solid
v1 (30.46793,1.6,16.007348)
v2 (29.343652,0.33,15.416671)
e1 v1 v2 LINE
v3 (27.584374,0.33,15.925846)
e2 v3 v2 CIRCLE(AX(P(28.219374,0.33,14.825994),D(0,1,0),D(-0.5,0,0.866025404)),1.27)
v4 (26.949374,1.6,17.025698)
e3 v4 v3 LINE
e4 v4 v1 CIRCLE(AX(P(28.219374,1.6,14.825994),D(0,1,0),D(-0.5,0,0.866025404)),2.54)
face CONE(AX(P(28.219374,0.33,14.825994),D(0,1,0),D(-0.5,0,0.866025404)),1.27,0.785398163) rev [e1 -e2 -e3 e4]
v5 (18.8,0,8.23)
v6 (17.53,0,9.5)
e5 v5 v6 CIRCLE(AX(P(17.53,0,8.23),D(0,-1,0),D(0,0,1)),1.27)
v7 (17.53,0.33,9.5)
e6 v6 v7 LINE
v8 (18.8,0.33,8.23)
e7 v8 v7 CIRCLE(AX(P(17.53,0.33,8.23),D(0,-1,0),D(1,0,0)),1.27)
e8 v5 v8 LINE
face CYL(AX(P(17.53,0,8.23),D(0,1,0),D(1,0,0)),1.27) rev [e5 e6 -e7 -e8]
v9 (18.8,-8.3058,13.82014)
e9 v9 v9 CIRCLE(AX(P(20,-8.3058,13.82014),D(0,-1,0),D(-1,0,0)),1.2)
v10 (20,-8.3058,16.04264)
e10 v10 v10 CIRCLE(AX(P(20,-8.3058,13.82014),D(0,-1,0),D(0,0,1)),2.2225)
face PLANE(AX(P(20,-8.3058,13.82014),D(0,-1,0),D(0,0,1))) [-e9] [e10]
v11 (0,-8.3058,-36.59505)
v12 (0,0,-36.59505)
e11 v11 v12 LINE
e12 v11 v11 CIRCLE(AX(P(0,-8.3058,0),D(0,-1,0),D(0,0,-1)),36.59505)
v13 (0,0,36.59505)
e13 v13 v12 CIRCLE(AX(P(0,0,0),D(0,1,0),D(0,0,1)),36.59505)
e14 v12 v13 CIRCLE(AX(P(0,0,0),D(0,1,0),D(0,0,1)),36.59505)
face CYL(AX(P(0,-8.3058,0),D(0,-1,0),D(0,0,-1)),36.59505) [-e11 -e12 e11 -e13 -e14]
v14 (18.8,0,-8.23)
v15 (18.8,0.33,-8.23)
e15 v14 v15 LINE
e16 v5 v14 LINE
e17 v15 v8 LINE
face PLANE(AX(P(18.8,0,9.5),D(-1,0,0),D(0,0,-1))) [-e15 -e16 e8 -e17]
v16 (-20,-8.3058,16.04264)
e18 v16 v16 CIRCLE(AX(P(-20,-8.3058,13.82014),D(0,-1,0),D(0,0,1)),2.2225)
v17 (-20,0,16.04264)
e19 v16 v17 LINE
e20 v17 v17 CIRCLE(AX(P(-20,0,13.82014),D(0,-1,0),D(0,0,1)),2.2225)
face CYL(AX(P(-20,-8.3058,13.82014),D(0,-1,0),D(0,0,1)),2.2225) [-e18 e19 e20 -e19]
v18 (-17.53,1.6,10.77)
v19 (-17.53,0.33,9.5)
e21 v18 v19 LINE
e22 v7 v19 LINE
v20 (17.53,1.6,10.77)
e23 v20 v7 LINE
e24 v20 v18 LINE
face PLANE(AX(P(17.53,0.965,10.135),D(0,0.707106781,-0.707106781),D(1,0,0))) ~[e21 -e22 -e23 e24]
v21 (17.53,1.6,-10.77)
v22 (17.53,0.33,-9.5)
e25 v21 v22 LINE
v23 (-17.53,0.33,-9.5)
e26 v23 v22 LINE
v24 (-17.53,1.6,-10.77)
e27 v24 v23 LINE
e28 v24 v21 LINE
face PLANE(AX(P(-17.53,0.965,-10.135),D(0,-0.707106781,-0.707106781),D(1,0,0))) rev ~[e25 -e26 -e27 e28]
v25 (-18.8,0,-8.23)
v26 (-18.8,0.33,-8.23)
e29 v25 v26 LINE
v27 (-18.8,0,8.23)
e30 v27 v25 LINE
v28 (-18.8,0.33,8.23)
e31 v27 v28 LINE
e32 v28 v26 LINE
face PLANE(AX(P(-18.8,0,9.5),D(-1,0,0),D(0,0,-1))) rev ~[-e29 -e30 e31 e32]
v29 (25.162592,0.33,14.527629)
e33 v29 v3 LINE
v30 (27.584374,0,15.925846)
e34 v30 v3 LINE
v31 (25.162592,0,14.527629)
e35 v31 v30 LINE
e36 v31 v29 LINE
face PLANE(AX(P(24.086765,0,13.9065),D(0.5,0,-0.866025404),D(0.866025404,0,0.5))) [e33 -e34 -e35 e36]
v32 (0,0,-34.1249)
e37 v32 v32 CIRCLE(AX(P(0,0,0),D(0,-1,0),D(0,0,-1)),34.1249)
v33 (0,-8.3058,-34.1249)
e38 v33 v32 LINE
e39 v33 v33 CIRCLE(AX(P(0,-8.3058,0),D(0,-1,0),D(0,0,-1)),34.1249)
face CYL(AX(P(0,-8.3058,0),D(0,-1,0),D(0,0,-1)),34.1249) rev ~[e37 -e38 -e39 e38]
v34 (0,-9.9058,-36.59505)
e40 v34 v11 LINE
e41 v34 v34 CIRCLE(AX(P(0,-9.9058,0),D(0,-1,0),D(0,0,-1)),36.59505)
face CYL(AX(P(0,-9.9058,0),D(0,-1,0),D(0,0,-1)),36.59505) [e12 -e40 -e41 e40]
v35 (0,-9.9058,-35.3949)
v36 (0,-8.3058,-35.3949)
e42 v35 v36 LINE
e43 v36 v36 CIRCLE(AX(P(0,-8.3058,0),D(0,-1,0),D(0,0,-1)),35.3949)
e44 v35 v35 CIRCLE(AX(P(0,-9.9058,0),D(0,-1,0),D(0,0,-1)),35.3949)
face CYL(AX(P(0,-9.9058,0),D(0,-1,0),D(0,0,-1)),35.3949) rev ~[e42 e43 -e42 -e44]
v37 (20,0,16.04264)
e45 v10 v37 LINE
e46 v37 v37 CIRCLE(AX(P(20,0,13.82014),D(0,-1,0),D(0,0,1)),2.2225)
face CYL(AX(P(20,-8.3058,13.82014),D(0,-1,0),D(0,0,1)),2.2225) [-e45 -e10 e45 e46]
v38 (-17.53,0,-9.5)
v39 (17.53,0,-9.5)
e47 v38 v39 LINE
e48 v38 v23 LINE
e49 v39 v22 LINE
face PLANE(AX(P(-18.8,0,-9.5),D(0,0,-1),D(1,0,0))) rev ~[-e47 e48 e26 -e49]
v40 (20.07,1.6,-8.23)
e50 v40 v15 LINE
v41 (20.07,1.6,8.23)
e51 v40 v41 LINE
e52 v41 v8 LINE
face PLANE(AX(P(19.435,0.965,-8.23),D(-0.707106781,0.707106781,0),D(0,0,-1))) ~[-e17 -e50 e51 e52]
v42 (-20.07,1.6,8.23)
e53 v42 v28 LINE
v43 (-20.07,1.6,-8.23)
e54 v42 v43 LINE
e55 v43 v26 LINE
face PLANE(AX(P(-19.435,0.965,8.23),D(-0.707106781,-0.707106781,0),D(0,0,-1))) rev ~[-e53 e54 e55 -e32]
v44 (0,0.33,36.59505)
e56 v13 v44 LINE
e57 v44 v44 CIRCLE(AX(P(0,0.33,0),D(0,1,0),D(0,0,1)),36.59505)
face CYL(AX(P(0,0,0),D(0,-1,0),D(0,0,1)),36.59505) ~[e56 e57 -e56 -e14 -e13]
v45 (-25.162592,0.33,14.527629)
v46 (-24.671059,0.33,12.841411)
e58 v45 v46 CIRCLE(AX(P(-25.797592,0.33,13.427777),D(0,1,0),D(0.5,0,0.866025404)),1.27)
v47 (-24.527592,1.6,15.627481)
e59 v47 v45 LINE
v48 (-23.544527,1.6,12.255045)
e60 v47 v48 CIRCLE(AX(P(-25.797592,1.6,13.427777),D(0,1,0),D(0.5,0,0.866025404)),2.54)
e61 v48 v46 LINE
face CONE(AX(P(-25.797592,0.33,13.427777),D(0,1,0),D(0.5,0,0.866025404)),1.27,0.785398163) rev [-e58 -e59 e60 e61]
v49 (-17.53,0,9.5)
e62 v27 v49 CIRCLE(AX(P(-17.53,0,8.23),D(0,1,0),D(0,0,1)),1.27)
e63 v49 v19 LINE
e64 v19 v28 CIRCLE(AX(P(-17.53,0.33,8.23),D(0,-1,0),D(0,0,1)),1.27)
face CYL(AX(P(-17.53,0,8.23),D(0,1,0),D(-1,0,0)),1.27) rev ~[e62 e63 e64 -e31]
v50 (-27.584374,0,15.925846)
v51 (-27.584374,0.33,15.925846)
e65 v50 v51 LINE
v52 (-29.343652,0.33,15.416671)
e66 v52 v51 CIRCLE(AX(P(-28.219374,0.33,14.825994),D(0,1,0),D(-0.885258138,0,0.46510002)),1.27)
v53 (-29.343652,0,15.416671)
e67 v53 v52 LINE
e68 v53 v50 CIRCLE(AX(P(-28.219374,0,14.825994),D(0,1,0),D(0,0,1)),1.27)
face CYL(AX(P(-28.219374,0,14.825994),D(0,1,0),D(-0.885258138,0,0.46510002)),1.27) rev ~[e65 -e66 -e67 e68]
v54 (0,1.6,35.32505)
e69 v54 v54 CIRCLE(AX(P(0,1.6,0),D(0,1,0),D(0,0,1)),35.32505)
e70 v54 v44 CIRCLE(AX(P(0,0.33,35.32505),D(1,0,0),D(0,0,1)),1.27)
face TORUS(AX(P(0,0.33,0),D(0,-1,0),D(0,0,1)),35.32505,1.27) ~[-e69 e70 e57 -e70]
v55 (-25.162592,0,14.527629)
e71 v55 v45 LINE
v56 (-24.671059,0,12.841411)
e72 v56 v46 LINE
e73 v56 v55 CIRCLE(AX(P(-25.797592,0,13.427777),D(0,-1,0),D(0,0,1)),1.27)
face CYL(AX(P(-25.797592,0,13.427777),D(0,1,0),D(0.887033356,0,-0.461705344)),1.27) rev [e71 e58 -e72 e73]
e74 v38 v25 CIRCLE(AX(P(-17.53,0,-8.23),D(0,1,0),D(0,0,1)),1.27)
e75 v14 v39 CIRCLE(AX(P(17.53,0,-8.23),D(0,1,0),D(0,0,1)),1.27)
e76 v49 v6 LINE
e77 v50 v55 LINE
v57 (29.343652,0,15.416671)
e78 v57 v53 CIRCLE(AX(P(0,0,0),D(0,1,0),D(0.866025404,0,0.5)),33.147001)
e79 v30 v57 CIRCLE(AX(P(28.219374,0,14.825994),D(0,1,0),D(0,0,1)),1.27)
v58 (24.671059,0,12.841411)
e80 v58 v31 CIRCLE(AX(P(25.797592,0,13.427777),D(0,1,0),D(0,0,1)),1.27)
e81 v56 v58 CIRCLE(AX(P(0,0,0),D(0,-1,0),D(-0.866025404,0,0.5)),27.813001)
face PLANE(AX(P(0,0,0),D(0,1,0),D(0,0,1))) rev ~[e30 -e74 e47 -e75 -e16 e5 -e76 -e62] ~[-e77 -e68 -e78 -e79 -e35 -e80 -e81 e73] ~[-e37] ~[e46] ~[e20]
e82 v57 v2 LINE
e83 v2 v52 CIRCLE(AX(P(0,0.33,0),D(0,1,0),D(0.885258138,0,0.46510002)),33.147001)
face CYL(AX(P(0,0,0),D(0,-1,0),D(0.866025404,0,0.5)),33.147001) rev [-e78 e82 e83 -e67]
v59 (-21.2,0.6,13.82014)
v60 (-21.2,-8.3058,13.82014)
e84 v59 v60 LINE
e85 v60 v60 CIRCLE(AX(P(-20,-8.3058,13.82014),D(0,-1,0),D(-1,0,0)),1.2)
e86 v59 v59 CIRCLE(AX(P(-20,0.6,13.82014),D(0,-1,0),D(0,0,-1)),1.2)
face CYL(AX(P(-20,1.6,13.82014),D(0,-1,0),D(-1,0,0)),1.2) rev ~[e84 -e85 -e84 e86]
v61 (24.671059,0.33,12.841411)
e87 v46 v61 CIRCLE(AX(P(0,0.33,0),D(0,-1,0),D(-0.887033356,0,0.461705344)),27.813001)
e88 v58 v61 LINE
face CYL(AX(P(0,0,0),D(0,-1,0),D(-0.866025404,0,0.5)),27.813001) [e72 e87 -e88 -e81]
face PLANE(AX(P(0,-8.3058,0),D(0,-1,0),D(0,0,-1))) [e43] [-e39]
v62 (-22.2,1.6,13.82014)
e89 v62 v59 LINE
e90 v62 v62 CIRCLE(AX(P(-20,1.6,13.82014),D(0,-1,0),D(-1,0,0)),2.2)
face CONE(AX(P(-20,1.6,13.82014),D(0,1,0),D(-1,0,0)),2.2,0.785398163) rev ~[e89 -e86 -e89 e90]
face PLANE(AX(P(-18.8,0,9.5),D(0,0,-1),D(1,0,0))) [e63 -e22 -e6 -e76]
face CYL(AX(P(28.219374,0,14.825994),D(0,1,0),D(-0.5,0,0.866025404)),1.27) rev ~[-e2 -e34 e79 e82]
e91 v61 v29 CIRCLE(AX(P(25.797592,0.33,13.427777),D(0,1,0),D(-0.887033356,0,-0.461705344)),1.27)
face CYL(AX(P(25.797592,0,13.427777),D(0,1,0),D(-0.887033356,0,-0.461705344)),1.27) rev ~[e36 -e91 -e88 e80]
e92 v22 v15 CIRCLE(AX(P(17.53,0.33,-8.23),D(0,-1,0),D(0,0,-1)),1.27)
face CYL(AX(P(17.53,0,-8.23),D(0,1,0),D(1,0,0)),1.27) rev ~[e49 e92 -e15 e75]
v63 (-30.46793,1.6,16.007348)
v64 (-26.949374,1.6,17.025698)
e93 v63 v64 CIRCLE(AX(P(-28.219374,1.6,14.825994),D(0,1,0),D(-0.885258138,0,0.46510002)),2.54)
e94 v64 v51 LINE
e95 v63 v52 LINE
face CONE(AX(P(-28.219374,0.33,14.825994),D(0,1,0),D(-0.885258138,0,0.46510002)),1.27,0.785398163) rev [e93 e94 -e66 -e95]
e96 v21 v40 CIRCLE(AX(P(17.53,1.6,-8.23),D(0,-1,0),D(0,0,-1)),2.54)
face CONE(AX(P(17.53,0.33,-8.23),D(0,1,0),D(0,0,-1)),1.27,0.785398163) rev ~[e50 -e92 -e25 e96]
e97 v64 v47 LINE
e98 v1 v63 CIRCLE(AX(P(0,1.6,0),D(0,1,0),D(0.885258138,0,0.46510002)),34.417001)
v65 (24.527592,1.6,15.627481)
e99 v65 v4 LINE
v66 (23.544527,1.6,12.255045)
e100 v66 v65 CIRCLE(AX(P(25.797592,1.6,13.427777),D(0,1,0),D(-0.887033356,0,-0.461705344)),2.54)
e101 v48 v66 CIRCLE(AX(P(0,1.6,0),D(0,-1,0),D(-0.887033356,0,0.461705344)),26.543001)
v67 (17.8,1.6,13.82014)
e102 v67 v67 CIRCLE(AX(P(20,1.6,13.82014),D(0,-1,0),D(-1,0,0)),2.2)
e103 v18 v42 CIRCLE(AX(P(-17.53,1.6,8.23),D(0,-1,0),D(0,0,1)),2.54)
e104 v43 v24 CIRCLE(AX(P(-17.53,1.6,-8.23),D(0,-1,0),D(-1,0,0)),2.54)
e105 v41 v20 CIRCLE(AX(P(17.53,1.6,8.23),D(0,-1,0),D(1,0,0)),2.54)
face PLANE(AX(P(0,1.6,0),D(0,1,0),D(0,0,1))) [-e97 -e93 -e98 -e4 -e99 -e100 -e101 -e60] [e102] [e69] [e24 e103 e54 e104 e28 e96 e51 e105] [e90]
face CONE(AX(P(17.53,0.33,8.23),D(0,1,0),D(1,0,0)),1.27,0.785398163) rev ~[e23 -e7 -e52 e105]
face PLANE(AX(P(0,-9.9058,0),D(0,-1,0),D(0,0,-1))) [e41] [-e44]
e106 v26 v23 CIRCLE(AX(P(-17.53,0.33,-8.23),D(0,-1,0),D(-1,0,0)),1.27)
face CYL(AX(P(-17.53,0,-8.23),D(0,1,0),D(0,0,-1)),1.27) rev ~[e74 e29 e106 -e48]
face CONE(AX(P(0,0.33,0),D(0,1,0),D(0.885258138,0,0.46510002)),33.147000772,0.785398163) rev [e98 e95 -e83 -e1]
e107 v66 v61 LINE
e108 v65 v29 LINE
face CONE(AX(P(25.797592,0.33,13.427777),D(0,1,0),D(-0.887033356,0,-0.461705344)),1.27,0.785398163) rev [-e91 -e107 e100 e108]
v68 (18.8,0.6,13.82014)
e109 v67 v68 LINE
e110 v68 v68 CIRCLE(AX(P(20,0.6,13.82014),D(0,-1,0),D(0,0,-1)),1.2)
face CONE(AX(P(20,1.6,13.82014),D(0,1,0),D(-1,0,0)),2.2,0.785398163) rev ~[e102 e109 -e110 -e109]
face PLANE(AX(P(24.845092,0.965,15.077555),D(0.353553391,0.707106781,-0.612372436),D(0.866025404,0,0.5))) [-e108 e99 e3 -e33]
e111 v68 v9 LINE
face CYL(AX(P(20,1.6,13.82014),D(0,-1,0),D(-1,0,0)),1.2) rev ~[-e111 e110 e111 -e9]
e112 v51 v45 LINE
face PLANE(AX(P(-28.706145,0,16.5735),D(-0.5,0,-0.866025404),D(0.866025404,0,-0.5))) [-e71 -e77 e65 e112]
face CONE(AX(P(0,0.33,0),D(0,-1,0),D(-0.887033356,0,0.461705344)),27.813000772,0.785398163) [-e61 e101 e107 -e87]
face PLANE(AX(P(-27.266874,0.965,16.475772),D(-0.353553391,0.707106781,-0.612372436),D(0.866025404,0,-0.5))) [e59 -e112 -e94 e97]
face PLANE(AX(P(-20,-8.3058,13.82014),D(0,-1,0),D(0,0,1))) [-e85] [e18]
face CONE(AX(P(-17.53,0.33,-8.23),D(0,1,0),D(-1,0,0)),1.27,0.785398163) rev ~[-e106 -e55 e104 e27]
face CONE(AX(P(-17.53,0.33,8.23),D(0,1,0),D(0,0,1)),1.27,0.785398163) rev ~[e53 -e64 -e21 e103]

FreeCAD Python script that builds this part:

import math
import FreeCAD as App
import Part
import Sketcher
from FreeCAD import Vector
Q = App.Units.Quantity


def edges_at(feature, points):
    """Names of the edges that pass closest to the given points."""
    edges = feature.Shape.Edges
    near = lambda p: min(range(len(edges)), key=lambda i: edges[i].distToShape(Part.Vertex(*p))[0])
    return sorted({f"Edge{near(p) + 1}" for p in points})


def add_polygon(sketch, points):
    """Adds a closed chain of lines whose ends are joined by coincident constraints."""
    first, n = sketch.GeometryCount, len(points)
    for a, b in zip(points, points[1:] + points[:1]):
        sketch.addGeometry(Part.LineSegment(App.Vector(*a, 0), App.Vector(*b, 0)), False)
    for i in range(n):
        sketch.addConstraint(Sketcher.Constraint("Coincident", first + i, 2, first + (i + 1) % n, 1))

doc = App.newDocument("Part")
body = doc.addObject("PartDesign::Body", "Body")

# Sketch on XZ plane
sketch1 = doc.addObject("Sketcher::SketchObject", "Sketch")
body.addObject(sketch1)
sketch1.AttachmentSupport = (doc.XZ_Plane, [""])
sketch1.MapMode = "FlatFace"
sketch1.addGeometry(Part.Circle(Vector(0, 0, 0), Vector(0, 0, 1), 37), False)  # 0
sketch1.addGeometry(Part.LineSegment(Vector(-24, 14, 0), Vector(-29, 17, 0)), False)  # 1
sketch1.addGeometry(Part.ArcOfCircle(Part.Circle(Vector(0, 0, 0), Vector(0, 0, 1), 33), math.radians(150), math.radians(390)), False)  # 2
sketch1.addGeometry(Part.LineSegment(Vector(29, 17, 0), Vector(24, 14, 0)), False)  # 3
sketch1.addGeometry(Part.ArcOfCircle(Part.Circle(Vector(0, 0, 0), Vector(0, 0, 1), 28), math.radians(150), math.radians(390)), False)  # 4
add_polygon(sketch1, [(19, 10), (-19, 10), (-19, -10), (19, -10)])  # lines 5-8
sketch1.addConstraint(Sketcher.Constraint("Coincident", 1, 2, 2, 1))
sketch1.addConstraint(Sketcher.Constraint("Coincident", 2, 2, 3, 1))
sketch1.addConstraint(Sketcher.Constraint("Coincident", 3, 2, 4, 2))
sketch1.addConstraint(Sketcher.Constraint("Coincident", 4, 1, 1, 1))
sketch1.addConstraint(Sketcher.Constraint("Horizontal", 5))
sketch1.addConstraint(Sketcher.Constraint("Vertical", 6))
sketch1.addConstraint(Sketcher.Constraint("Horizontal", 7))
sketch1.addConstraint(Sketcher.Constraint("Vertical", 8))
sketch1.addConstraint(Sketcher.Constraint("Coincident", 0, 3, -1, 1))
sketch1.addConstraint(Sketcher.Constraint("Coincident", 2, 3, -1, 1))
sketch1.addConstraint(Sketcher.Constraint("Coincident", 4, 3, -1, 1))
sketch1.addConstraint(Sketcher.Constraint("Symmetric", 5, 2, 7, 2, -1, 1))
sketch1.addConstraint(Sketcher.Constraint("Horizontal", 1, 2, 2, 2))
sketch1.addConstraint(Sketcher.Constraint("Horizontal", 3, 2, 4, 1))
sketch1.addConstraint(Sketcher.Constraint("Angle", 1, Q("150 deg")))
sketch1.addConstraint(Sketcher.Constraint("Radius", 2, Q("1.305 in")))
sketch1.addConstraint(Sketcher.Constraint("Radius", 4, Q("1.095 in")))
sketch1.addConstraint(Sketcher.Constraint("Diameter", 0, Q("2.8815 in")))
sketch1.addConstraint(Sketcher.Constraint("DistanceX", 5, 2, 5, 1, Q("37.6 mm")))
sketch1.addConstraint(Sketcher.Constraint("DistanceY", 6, 2, 6, 1, Q("19 mm")))
sketch1.addConstraint(Sketcher.Constraint("DistanceY", -1, 1, 1, 2, Q("0.6525 in")))
pad1 = doc.addObject("PartDesign::Pad", "Pad")
body.addObject(pad1)
pad1.Profile = sketch1
pad1.Length = 1.6
pad1.Reversed = True

# Sketch on XZ plane
sketch2 = doc.addObject("Sketcher::SketchObject", "Sketch001")
body.addObject(sketch2)
sketch2.AttachmentSupport = (doc.XZ_Plane, [""])
sketch2.MapMode = "FlatFace"
sketch2.AttachmentOffset = App.Placement(Vector(0, 0, 0.327 * 25.4), App.Rotation())
sketch2.addGeometry(Part.Circle(Vector(0, 0, 0), Vector(0, 0, 1), 36.6), False)
sketch2.addGeometry(Part.Circle(Vector(0, 0, 0), Vector(0, 0, 1), 34.1), False)
sketch2.addGeometry(Part.Circle(Vector(20, 13.8, 0), Vector(0, 0, 1), 2.2), False)
sketch2.addGeometry(Part.Circle(Vector(-20, 13.8, 0), Vector(0, 0, 1), 2.2), False)
sketch2.addConstraint(Sketcher.Constraint("Coincident", 0, 3, -1, 1))
sketch2.addConstraint(Sketcher.Constraint("Coincident", 1, 3, -1, 1))
sketch2.addConstraint(Sketcher.Constraint("Equal", 2, 3))
sketch2.addConstraint(Sketcher.Constraint("Symmetric", 2, 3, 3, 3, -2))
sketch2.addConstraint(Sketcher.Constraint("Diameter", 1, Q("2.687 in")))
sketch2.addConstraint(Sketcher.Constraint("Diameter", 2, Q("0.175 in")))
sketch2.addConstraint(Sketcher.Constraint("Diameter", 0, Q("2.8815 in")))
sketch2.addConstraint(Sketcher.Constraint("DistanceY", -1, 1, 2, 3, Q("0.5441 in")))
sketch2.addConstraint(Sketcher.Constraint("DistanceX", -1, 1, 2, 3, Q("20 mm")))
pad2 = doc.addObject("PartDesign::Pad", "Pad001")
body.addObject(pad2)
pad2.Profile = sketch2
pad2.Length = Q("0.327 in")
pad2.Reversed = True

# Sketch on XZ plane
sketch3 = doc.addObject("Sketcher::SketchObject", "Sketch002")
body.addObject(sketch3)
sketch3.AttachmentSupport = (doc.XZ_Plane, [""])
sketch3.MapMode = "FlatFace"
sketch3.AttachmentOffset = App.Placement(Vector(0, 0, -1.6), App.Rotation())
sketch3.addGeometry(Part.Circle(Vector(-20, 13.8, 0), Vector(0, 0, 1), 1.2), False)
sketch3.addGeometry(Part.Circle(Vector(20, 13.8, 0), Vector(0, 0, 1), 1.2), False)
sketch3.addConstraint(Sketcher.Constraint("Equal", 0, 1))
sketch3.addConstraint(Sketcher.Constraint("Symmetric", 0, 3, 1, 3, -2))
sketch3.addConstraint(Sketcher.Constraint("Diameter", 0, Q("2.4 mm")))
sketch3.addConstraint(Sketcher.Constraint("DistanceY", -1, 1, 0, 3, Q("0.5441 in")))
sketch3.addConstraint(Sketcher.Constraint("DistanceX", 0, 3, -1, 1, Q("20 mm")))
doc.recompute()
hole = doc.addObject("PartDesign::Hole", "Hole")
body.addObject(hole)
hole.Profile = sketch3
hole.ThreadType = "None"
hole.Diameter = 2.4
hole.DepthType = "ThroughAll"
hole.HoleCutType = "Countersink"
hole.HoleCutDiameter = 4.4
hole.HoleCutCountersinkAngle = 90
hole.Reversed = True
doc.recompute()

fillet = doc.addObject("PartDesign::Fillet", "Fillet")
body.addObject(fillet)
fillet.Base = (hole, edges_at(hole, [
    (28.706, 0.8, 16.574),
    (-28.706, 0.8, 16.574),
    (-24.087, 0.8, 13.907),
    (24.087, 0.8, 13.907),
    (18.8, 0.8, -9.5),
    (-18.8, 0.8, -9.5),
    (-18.8, 0.8, 9.5),
    (18.8, 0.8, 9.5),
]))
fillet.Radius = Q("0.05 in")

# Sketch on XZ plane
sketch4 = doc.addObject("Sketcher::SketchObject", "Sketch003")
body.addObject(sketch4)
sketch4.AttachmentSupport = (doc.XZ_Plane, [""])
sketch4.MapMode = "FlatFace"
sketch4.AttachmentOffset = App.Placement(Vector(0, 0, 9.9058), App.Rotation())
sketch4.addGeometry(Part.Circle(Vector(0, 0, 0), Vector(0, 0, 1), 37), False)
sketch4.addGeometry(Part.Circle(Vector(0, 0, 0), Vector(0, 0, 1), 35), False)
sketch4.addConstraint(Sketcher.Constraint("Coincident", 0, 3, -1, 1))
sketch4.addConstraint(Sketcher.Constraint("Coincident", 1, 3, -1, 1))
sketch4.addConstraint(Sketcher.Constraint("Diameter", 1, Q("2.787 in")))
sketch4.addConstraint(Sketcher.Constraint("Diameter", 0, Q("2.8815 in")))
pad3 = doc.addObject("PartDesign::Pad", "Pad002")
body.addObject(pad3)
pad3.Profile = sketch4
pad3.Length = 1.6
pad3.Reversed = True
doc.recompute()

chamfer = doc.addObject("PartDesign::Chamfer", "Chamfer")
body.addObject(chamfer)
chamfer.Base = (pad3, edges_at(pad3, [
    (-18.8, 1.6, 0),
    (0, 1.6, 9.5),
    (18.8, 1.6, 0),
    (0, 1.6, -9.5),
    (0, 1.6, -27.813),
    (26.373, 1.6, 15.227),
    (0, 1.6, -33.147),
    (-26.373, 1.6, 15.227),
    (-18.428, 1.6, 9.128),
    (18.428, 1.6, 9.128),
    (18.428, 1.6, -9.128),
    (-18.428, 1.6, -9.128),
    (24.578, 1.6, 13.783),
    (28.572, 1.6, 16.046),
    (-28.572, 1.6, 16.046),
    (-24.578, 1.6, 13.783),
]))
chamfer.Size = Q("0.05 in")
doc.recompute()

fillet2 = doc.addObject("PartDesign::Fillet", "Fillet001")
body.addObject(fillet2)
fillet2.Base = (chamfer, edges_at(chamfer, [(0, 1.6, -36.595)]))
fillet2.Radius = Q("0.05 in")

doc.recompute()
